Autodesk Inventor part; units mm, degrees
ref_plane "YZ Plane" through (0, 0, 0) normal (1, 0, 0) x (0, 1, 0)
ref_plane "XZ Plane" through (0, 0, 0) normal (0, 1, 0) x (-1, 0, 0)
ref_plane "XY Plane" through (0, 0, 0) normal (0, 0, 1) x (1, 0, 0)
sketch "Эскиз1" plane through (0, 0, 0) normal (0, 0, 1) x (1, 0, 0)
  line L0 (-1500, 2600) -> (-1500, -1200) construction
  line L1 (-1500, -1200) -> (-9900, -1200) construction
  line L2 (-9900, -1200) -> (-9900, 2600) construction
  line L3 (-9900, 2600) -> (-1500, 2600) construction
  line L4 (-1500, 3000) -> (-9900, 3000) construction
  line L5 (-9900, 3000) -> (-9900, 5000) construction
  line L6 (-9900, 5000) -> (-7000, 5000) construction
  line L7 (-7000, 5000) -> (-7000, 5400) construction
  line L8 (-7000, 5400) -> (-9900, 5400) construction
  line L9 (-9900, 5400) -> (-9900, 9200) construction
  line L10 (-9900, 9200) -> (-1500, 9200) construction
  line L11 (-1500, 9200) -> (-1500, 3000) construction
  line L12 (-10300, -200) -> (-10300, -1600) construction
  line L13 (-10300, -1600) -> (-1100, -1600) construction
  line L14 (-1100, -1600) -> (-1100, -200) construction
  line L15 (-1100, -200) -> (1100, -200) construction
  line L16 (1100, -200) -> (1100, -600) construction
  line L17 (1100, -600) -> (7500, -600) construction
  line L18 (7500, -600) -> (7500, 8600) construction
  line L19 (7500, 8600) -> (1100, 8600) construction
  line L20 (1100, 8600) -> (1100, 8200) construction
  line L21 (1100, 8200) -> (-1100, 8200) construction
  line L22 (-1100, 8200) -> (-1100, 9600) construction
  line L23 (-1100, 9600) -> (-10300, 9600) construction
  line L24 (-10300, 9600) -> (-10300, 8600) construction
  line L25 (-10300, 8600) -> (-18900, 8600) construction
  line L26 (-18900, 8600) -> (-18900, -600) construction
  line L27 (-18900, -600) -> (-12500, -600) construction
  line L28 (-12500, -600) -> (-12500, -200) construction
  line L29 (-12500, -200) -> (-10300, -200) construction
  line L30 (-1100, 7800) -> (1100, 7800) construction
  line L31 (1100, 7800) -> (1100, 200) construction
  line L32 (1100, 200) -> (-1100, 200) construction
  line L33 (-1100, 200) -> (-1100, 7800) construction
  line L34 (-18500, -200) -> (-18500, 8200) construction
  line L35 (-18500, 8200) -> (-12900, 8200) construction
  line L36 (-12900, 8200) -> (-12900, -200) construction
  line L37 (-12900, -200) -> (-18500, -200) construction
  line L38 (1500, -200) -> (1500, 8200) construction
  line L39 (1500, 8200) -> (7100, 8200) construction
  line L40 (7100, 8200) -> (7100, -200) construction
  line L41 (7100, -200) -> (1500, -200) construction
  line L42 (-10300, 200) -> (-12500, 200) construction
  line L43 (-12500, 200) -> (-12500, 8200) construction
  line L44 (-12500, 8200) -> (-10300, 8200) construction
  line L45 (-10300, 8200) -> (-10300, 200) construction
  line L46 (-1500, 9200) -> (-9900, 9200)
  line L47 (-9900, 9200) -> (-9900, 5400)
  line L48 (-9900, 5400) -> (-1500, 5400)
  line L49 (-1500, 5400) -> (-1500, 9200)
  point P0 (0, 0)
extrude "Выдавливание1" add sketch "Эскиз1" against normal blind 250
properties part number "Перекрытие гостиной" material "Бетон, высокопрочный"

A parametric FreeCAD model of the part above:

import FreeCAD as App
import Part
import Sketcher
Q = App.Units.Quantity

doc = App.newDocument("Part")
body = doc.addObject("PartDesign::Body", "Body")

sketch1 = body.newObject("Sketcher::SketchObject", "Sketch")
sketch1.AttachmentSupport = (doc.getObject("XY_Plane"), [""])
sketch1.MapMode = "FlatFace"
sketch1.addGeometry([
    Part.LineSegment(App.Vector(-1500, 5400, 0), App.Vector(-1500, 9200, 0)),
    Part.LineSegment(App.Vector(-1500, 9200, 0), App.Vector(-9900, 9200, 0)),
    Part.LineSegment(App.Vector(-9900, 9200, 0), App.Vector(-9900, 5400, 0)),
    Part.LineSegment(App.Vector(-9900, 5400, 0), App.Vector(-1500, 5400, 0)),
], False)
sketch1.addConstraint([
    Sketcher.Constraint("Coincident", 0, 2, 1, 1),
    Sketcher.Constraint("Coincident", 1, 2, 2, 1),
    Sketcher.Constraint("Coincident", 2, 2, 3, 1),
    Sketcher.Constraint("Coincident", 3, 2, 0, 1),
    Sketcher.Constraint("Vertical", 0),
    Sketcher.Constraint("Horizontal", 1),
    Sketcher.Constraint("Vertical", 2),
    Sketcher.Constraint("Horizontal", 3),
    Sketcher.Constraint("DistanceX", 1, 2, 1, 1, Q("8400 mm")),
    Sketcher.Constraint("DistanceY", 0, 1, 0, 2, Q("3800 mm")),
    Sketcher.Constraint("DistanceX", 0, 2, -1, 1, Q("1500 mm")),
    Sketcher.Constraint("DistanceY", -1, 1, 0, 2, Q("9200 mm")),
])
pad1 = body.newObject("PartDesign::Pad", "Pad")
pad1.Profile = sketch1
pad1.Length = 250
pad1.Reversed = True

doc.recompute()
